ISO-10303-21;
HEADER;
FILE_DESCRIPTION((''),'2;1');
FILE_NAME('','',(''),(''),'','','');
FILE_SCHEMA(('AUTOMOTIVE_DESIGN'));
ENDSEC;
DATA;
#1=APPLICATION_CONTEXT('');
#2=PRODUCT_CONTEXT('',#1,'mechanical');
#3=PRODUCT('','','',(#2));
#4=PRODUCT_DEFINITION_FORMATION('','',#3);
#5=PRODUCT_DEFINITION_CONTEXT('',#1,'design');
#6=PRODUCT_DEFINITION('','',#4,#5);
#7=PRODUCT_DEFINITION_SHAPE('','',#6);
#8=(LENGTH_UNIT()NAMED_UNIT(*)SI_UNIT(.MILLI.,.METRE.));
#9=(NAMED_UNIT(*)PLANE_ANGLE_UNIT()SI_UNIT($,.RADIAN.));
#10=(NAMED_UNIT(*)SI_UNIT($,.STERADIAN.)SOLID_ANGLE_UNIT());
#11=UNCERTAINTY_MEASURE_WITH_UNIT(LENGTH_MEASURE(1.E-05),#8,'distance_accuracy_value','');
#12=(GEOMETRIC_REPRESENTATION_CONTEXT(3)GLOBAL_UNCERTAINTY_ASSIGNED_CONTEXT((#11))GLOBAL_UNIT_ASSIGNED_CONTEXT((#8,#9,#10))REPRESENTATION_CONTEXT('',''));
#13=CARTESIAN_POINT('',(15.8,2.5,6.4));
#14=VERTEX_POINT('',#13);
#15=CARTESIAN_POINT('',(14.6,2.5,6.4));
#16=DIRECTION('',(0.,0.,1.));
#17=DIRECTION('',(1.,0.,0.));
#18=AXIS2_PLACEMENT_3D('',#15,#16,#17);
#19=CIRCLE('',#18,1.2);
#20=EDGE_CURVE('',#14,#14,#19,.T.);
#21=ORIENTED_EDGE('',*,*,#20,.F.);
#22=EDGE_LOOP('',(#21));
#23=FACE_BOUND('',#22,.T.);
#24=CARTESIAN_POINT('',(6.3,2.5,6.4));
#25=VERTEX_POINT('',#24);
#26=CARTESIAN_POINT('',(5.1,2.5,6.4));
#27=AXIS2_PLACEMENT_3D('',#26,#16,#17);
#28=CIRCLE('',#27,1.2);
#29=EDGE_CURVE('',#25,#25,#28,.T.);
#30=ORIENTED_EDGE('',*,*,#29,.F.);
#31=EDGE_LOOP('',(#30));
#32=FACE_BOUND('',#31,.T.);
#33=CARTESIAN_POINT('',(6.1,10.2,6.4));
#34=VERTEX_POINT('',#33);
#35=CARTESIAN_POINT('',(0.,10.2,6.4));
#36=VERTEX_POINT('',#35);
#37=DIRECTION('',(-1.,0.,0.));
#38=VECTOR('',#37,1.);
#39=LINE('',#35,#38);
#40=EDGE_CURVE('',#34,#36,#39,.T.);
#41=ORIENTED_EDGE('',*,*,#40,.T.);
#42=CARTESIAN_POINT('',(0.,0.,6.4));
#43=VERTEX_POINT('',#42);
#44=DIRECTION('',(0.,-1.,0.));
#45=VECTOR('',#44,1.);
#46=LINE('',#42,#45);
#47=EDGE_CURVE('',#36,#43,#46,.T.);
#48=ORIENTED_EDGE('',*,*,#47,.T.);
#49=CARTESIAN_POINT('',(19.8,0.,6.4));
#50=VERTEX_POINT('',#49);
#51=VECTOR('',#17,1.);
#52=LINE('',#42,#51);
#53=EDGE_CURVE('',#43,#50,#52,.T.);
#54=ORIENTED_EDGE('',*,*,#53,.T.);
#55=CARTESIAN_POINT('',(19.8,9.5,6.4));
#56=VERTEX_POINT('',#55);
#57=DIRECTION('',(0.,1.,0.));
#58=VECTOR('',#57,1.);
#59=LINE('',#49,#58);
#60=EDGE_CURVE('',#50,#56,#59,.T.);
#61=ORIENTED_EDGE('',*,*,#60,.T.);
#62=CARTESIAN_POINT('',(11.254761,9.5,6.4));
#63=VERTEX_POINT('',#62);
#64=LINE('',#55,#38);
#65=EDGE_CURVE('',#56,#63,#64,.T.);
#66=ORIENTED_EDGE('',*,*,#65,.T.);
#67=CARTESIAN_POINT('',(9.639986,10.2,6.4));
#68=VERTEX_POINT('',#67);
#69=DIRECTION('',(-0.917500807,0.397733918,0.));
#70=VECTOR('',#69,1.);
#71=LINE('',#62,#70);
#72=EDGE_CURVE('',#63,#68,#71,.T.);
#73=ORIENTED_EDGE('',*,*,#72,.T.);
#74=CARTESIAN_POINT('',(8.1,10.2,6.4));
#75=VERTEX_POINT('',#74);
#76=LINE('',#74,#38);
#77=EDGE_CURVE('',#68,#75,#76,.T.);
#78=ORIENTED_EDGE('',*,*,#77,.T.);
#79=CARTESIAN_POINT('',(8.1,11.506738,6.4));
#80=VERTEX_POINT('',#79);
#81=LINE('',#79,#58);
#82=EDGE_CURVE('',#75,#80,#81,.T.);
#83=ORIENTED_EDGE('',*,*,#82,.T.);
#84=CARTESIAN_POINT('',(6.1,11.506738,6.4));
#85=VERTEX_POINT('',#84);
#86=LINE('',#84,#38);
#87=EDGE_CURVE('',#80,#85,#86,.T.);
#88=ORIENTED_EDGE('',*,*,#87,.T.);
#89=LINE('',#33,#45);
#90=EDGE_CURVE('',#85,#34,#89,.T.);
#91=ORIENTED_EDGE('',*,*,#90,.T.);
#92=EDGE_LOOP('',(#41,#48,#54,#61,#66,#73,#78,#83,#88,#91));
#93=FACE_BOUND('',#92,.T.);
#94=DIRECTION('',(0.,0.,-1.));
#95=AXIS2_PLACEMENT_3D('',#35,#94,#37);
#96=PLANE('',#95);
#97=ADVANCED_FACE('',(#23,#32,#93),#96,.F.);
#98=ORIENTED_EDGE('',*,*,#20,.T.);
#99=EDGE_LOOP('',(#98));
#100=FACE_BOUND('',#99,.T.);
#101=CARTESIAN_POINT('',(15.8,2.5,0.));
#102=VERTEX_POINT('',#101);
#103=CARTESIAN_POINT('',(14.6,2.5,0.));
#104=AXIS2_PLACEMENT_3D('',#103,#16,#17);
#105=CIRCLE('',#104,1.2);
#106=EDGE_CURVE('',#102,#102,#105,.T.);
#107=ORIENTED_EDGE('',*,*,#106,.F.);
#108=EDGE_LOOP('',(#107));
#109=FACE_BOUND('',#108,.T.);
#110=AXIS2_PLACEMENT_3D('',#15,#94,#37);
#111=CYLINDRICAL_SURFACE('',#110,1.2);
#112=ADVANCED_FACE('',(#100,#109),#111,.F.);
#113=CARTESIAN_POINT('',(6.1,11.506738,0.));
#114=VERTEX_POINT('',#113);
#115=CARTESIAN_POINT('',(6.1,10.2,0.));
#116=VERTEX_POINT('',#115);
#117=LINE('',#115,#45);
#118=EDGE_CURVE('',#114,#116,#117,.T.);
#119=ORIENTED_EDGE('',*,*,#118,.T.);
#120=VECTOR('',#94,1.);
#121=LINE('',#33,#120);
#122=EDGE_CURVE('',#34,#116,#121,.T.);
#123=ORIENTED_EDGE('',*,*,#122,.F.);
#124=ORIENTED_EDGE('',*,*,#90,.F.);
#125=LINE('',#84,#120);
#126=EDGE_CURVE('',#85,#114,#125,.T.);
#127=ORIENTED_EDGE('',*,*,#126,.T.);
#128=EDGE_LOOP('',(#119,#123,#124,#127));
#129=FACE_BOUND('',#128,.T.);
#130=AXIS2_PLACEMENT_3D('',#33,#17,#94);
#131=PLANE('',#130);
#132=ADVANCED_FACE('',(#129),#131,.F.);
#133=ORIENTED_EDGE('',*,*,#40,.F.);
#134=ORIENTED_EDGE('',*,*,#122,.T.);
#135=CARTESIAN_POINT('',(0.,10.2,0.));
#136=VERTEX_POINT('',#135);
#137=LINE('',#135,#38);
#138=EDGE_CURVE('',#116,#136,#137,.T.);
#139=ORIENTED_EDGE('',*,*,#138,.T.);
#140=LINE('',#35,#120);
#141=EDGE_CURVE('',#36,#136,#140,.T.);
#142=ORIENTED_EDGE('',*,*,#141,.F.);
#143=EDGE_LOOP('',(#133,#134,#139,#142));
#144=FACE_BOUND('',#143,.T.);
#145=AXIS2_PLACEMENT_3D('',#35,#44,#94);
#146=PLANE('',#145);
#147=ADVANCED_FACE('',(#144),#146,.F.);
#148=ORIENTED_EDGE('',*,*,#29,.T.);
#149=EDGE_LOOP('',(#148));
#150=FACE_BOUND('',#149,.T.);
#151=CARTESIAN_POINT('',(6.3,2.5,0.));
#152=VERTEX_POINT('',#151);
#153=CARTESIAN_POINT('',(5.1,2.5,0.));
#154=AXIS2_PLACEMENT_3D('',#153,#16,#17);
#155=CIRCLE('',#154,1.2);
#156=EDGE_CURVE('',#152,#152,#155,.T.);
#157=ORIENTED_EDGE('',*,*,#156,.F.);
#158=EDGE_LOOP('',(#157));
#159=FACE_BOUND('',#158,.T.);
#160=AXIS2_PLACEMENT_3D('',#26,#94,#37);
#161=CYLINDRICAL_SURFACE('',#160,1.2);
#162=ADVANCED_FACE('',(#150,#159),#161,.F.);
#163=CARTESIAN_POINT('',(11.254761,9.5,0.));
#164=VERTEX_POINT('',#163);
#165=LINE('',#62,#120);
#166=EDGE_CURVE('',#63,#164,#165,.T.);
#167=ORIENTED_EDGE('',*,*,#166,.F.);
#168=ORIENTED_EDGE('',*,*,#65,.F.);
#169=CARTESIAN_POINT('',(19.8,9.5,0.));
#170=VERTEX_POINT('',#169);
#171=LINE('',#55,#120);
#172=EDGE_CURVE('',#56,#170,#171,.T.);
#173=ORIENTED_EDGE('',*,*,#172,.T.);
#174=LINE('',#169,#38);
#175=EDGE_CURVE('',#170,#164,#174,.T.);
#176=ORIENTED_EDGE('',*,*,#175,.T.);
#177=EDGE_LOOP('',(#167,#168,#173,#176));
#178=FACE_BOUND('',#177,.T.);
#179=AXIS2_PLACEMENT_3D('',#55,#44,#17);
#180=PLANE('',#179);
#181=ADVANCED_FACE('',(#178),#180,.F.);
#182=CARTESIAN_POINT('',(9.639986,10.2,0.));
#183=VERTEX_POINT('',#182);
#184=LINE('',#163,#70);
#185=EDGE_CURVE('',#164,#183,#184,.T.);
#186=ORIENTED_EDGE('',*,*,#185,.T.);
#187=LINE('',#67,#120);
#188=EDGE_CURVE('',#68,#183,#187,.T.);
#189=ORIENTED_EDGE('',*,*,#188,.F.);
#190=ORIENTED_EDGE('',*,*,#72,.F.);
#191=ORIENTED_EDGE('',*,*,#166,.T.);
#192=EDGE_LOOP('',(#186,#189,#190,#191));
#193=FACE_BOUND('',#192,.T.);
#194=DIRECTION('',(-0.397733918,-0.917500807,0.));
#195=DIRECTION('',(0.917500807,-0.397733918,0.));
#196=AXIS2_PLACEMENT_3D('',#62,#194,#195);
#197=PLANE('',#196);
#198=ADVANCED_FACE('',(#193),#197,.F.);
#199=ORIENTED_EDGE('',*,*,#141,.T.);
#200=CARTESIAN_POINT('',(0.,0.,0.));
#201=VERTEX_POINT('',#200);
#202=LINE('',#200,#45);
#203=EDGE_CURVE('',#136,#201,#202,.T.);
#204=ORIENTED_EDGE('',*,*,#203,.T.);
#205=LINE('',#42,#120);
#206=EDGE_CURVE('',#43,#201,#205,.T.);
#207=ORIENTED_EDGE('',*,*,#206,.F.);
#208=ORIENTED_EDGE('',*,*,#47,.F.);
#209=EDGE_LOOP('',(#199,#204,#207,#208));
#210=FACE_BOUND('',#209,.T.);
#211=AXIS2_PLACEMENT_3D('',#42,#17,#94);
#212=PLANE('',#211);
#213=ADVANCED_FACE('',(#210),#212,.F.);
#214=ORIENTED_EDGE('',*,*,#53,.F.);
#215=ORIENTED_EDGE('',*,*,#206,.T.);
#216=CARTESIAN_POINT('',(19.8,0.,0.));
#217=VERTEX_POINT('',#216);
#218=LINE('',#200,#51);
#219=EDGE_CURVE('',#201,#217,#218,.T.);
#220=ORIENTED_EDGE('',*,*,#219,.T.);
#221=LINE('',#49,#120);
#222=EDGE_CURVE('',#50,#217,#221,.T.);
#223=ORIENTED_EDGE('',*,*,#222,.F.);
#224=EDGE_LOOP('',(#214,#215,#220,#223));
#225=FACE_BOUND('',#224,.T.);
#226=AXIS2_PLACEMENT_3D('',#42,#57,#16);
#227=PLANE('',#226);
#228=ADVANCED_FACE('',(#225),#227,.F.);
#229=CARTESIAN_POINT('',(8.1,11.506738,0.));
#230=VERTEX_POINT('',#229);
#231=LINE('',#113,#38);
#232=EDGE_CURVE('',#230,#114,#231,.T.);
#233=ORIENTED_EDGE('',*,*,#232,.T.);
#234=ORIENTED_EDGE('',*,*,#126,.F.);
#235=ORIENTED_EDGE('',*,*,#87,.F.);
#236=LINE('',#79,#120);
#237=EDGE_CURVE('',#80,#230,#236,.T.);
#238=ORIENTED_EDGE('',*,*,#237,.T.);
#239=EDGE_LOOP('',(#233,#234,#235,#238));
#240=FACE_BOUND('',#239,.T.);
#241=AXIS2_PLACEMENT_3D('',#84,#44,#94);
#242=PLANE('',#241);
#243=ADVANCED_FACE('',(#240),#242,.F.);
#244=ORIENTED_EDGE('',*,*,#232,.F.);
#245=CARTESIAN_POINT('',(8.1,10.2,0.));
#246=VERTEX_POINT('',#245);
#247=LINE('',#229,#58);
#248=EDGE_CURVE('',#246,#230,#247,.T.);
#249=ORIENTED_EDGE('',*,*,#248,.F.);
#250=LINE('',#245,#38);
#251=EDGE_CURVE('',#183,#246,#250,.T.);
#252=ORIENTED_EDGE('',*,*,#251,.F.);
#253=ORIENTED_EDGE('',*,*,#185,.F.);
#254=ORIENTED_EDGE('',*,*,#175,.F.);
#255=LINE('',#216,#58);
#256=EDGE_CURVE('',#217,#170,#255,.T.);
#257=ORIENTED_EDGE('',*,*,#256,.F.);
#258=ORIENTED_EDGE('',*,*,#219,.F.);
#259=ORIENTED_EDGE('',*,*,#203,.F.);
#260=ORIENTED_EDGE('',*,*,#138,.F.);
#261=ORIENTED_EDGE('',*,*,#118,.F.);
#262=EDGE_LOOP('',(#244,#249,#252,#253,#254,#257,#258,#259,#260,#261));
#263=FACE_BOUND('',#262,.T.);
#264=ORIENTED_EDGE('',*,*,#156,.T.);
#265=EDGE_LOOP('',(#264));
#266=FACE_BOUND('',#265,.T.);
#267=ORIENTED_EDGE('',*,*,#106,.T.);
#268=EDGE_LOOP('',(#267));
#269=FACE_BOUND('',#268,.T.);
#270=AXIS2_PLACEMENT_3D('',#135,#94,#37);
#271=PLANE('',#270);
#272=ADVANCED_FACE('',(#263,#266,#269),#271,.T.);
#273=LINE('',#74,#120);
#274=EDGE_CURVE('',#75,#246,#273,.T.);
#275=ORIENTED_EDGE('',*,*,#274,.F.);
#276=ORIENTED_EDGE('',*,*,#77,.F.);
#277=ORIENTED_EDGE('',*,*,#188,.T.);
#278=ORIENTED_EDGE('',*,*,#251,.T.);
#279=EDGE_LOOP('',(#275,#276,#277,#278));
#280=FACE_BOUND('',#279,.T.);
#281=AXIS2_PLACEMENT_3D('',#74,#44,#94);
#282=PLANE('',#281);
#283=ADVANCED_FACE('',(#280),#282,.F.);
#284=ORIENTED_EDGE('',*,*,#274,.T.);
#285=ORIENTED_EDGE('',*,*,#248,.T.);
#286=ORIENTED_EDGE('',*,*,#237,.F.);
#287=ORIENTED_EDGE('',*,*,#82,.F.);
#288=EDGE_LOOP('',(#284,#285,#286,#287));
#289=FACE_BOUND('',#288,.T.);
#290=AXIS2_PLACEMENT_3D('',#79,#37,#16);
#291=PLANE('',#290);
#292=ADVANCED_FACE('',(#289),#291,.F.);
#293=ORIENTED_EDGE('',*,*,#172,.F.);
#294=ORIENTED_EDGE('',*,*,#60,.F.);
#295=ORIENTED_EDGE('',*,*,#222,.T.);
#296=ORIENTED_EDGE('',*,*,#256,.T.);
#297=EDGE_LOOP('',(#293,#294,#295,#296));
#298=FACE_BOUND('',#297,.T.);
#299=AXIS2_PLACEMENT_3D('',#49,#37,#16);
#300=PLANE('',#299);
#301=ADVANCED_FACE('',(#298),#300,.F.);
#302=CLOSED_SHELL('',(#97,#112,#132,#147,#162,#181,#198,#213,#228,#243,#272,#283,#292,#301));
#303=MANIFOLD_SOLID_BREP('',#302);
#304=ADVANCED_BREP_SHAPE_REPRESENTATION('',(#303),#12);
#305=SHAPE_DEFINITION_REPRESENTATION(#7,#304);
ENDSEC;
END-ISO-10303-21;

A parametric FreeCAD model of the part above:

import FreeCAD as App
import Part
import Sketcher
from FreeCAD import Vector


def add_polygon(sketch, points):
    """Adds a closed chain of lines whose ends are joined by coincident constraints."""
    first, n = sketch.GeometryCount, len(points)
    for a, b in zip(points, points[1:] + points[:1]):
        sketch.addGeometry(Part.LineSegment(App.Vector(*a, 0), App.Vector(*b, 0)), False)
    for i in range(n):
        sketch.addConstraint(Sketcher.Constraint("Coincident", first + i, 2, first + (i + 1) % n, 1))

doc = App.newDocument("Part")
body = doc.addObject("PartDesign::Body", "Body")

# Sketch on XY plane
sketch1 = body.newObject("Sketcher::SketchObject", "Sketch")
sketch1.AttachmentSupport = (doc.getObject("XY_Plane"), [""])
sketch1.MapMode = "FlatFace"
add_polygon(sketch1, [(0, 0), (19.8, 0), (19.8, 9.5), (11.3, 9.5), (9.6, 10.2), (8.1, 10.2), (8.1, 11.5), (6.1, 11.5), (6.1, 10.2), (0, 10.2)])  # lines 0-9
sketch1.addGeometry(Part.Circle(Vector(5.1, 2.5, 0), Vector(0, 0, 1), 1.2), False)  # 10
sketch1.addGeometry(Part.Circle(Vector(14.6, 2.5, 0), Vector(0, 0, 1), 1.2), False)  # 11
sketch1.addConstraint(Sketcher.Constraint("Horizontal", 0))
sketch1.addConstraint(Sketcher.Constraint("Vertical", 1))
sketch1.addConstraint(Sketcher.Constraint("Horizontal", 2))
sketch1.addConstraint(Sketcher.Constraint("Horizontal", 4))
sketch1.addConstraint(Sketcher.Constraint("Vertical", 5))
sketch1.addConstraint(Sketcher.Constraint("Horizontal", 6))
sketch1.addConstraint(Sketcher.Constraint("Vertical", 7))
sketch1.addConstraint(Sketcher.Constraint("Horizontal", 8))
sketch1.addConstraint(Sketcher.Constraint("Vertical", 9))
sketch1.addConstraint(Sketcher.Constraint("Coincident", 9, 2, -1, 1))
sketch1.addConstraint(Sketcher.Constraint("Equal", 10, 11))
sketch1.addConstraint(Sketcher.Constraint("Horizontal", 10, 3, 11, 3))
sketch1.addConstraint(Sketcher.Constraint("Horizontal", 4, 2, 7, 2))
sketch1.addConstraint(Sketcher.Constraint("Diameter", 10, 2.4))
sketch1.addConstraint(Sketcher.Constraint("DistanceX", 6, 2, 6, 1, 2.0))
sketch1.addConstraint(Sketcher.Constraint("DistanceX", 0, 1, 0, 2, 19.8))
sketch1.addConstraint(Sketcher.Constraint("DistanceX", 8, 2, 8, 1, 6.1))
sketch1.addConstraint(Sketcher.Constraint("DistanceY", 1, 1, 1, 2, 9.5))
sketch1.addConstraint(Sketcher.Constraint("DistanceY", 9, 2, 9, 1, 10.2))
sketch1.addConstraint(Sketcher.Constraint("DistanceY", 11, 3, 1, 2, 7.0))
sketch1.addConstraint(Sketcher.Constraint("DistanceX", 10, 3, 4, 2, 3.0))
sketch1.addConstraint(Sketcher.Constraint("DistanceX", -1, 1, 11, 3, 14.6))
sketch1.addConstraint(Sketcher.Constraint("DistanceX", 2, 2, 2, 1, 8.545239))
sketch1.addConstraint(Sketcher.Constraint("Distance", 3, 1.759971))
sketch1.addConstraint(Sketcher.Constraint("DistanceY", 5, 1, 5, 2, 1.306738))
pad1 = body.newObject("PartDesign::Pad", "Pad")
pad1.Profile = sketch1
pad1.Length = 6.4

doc.recompute()
